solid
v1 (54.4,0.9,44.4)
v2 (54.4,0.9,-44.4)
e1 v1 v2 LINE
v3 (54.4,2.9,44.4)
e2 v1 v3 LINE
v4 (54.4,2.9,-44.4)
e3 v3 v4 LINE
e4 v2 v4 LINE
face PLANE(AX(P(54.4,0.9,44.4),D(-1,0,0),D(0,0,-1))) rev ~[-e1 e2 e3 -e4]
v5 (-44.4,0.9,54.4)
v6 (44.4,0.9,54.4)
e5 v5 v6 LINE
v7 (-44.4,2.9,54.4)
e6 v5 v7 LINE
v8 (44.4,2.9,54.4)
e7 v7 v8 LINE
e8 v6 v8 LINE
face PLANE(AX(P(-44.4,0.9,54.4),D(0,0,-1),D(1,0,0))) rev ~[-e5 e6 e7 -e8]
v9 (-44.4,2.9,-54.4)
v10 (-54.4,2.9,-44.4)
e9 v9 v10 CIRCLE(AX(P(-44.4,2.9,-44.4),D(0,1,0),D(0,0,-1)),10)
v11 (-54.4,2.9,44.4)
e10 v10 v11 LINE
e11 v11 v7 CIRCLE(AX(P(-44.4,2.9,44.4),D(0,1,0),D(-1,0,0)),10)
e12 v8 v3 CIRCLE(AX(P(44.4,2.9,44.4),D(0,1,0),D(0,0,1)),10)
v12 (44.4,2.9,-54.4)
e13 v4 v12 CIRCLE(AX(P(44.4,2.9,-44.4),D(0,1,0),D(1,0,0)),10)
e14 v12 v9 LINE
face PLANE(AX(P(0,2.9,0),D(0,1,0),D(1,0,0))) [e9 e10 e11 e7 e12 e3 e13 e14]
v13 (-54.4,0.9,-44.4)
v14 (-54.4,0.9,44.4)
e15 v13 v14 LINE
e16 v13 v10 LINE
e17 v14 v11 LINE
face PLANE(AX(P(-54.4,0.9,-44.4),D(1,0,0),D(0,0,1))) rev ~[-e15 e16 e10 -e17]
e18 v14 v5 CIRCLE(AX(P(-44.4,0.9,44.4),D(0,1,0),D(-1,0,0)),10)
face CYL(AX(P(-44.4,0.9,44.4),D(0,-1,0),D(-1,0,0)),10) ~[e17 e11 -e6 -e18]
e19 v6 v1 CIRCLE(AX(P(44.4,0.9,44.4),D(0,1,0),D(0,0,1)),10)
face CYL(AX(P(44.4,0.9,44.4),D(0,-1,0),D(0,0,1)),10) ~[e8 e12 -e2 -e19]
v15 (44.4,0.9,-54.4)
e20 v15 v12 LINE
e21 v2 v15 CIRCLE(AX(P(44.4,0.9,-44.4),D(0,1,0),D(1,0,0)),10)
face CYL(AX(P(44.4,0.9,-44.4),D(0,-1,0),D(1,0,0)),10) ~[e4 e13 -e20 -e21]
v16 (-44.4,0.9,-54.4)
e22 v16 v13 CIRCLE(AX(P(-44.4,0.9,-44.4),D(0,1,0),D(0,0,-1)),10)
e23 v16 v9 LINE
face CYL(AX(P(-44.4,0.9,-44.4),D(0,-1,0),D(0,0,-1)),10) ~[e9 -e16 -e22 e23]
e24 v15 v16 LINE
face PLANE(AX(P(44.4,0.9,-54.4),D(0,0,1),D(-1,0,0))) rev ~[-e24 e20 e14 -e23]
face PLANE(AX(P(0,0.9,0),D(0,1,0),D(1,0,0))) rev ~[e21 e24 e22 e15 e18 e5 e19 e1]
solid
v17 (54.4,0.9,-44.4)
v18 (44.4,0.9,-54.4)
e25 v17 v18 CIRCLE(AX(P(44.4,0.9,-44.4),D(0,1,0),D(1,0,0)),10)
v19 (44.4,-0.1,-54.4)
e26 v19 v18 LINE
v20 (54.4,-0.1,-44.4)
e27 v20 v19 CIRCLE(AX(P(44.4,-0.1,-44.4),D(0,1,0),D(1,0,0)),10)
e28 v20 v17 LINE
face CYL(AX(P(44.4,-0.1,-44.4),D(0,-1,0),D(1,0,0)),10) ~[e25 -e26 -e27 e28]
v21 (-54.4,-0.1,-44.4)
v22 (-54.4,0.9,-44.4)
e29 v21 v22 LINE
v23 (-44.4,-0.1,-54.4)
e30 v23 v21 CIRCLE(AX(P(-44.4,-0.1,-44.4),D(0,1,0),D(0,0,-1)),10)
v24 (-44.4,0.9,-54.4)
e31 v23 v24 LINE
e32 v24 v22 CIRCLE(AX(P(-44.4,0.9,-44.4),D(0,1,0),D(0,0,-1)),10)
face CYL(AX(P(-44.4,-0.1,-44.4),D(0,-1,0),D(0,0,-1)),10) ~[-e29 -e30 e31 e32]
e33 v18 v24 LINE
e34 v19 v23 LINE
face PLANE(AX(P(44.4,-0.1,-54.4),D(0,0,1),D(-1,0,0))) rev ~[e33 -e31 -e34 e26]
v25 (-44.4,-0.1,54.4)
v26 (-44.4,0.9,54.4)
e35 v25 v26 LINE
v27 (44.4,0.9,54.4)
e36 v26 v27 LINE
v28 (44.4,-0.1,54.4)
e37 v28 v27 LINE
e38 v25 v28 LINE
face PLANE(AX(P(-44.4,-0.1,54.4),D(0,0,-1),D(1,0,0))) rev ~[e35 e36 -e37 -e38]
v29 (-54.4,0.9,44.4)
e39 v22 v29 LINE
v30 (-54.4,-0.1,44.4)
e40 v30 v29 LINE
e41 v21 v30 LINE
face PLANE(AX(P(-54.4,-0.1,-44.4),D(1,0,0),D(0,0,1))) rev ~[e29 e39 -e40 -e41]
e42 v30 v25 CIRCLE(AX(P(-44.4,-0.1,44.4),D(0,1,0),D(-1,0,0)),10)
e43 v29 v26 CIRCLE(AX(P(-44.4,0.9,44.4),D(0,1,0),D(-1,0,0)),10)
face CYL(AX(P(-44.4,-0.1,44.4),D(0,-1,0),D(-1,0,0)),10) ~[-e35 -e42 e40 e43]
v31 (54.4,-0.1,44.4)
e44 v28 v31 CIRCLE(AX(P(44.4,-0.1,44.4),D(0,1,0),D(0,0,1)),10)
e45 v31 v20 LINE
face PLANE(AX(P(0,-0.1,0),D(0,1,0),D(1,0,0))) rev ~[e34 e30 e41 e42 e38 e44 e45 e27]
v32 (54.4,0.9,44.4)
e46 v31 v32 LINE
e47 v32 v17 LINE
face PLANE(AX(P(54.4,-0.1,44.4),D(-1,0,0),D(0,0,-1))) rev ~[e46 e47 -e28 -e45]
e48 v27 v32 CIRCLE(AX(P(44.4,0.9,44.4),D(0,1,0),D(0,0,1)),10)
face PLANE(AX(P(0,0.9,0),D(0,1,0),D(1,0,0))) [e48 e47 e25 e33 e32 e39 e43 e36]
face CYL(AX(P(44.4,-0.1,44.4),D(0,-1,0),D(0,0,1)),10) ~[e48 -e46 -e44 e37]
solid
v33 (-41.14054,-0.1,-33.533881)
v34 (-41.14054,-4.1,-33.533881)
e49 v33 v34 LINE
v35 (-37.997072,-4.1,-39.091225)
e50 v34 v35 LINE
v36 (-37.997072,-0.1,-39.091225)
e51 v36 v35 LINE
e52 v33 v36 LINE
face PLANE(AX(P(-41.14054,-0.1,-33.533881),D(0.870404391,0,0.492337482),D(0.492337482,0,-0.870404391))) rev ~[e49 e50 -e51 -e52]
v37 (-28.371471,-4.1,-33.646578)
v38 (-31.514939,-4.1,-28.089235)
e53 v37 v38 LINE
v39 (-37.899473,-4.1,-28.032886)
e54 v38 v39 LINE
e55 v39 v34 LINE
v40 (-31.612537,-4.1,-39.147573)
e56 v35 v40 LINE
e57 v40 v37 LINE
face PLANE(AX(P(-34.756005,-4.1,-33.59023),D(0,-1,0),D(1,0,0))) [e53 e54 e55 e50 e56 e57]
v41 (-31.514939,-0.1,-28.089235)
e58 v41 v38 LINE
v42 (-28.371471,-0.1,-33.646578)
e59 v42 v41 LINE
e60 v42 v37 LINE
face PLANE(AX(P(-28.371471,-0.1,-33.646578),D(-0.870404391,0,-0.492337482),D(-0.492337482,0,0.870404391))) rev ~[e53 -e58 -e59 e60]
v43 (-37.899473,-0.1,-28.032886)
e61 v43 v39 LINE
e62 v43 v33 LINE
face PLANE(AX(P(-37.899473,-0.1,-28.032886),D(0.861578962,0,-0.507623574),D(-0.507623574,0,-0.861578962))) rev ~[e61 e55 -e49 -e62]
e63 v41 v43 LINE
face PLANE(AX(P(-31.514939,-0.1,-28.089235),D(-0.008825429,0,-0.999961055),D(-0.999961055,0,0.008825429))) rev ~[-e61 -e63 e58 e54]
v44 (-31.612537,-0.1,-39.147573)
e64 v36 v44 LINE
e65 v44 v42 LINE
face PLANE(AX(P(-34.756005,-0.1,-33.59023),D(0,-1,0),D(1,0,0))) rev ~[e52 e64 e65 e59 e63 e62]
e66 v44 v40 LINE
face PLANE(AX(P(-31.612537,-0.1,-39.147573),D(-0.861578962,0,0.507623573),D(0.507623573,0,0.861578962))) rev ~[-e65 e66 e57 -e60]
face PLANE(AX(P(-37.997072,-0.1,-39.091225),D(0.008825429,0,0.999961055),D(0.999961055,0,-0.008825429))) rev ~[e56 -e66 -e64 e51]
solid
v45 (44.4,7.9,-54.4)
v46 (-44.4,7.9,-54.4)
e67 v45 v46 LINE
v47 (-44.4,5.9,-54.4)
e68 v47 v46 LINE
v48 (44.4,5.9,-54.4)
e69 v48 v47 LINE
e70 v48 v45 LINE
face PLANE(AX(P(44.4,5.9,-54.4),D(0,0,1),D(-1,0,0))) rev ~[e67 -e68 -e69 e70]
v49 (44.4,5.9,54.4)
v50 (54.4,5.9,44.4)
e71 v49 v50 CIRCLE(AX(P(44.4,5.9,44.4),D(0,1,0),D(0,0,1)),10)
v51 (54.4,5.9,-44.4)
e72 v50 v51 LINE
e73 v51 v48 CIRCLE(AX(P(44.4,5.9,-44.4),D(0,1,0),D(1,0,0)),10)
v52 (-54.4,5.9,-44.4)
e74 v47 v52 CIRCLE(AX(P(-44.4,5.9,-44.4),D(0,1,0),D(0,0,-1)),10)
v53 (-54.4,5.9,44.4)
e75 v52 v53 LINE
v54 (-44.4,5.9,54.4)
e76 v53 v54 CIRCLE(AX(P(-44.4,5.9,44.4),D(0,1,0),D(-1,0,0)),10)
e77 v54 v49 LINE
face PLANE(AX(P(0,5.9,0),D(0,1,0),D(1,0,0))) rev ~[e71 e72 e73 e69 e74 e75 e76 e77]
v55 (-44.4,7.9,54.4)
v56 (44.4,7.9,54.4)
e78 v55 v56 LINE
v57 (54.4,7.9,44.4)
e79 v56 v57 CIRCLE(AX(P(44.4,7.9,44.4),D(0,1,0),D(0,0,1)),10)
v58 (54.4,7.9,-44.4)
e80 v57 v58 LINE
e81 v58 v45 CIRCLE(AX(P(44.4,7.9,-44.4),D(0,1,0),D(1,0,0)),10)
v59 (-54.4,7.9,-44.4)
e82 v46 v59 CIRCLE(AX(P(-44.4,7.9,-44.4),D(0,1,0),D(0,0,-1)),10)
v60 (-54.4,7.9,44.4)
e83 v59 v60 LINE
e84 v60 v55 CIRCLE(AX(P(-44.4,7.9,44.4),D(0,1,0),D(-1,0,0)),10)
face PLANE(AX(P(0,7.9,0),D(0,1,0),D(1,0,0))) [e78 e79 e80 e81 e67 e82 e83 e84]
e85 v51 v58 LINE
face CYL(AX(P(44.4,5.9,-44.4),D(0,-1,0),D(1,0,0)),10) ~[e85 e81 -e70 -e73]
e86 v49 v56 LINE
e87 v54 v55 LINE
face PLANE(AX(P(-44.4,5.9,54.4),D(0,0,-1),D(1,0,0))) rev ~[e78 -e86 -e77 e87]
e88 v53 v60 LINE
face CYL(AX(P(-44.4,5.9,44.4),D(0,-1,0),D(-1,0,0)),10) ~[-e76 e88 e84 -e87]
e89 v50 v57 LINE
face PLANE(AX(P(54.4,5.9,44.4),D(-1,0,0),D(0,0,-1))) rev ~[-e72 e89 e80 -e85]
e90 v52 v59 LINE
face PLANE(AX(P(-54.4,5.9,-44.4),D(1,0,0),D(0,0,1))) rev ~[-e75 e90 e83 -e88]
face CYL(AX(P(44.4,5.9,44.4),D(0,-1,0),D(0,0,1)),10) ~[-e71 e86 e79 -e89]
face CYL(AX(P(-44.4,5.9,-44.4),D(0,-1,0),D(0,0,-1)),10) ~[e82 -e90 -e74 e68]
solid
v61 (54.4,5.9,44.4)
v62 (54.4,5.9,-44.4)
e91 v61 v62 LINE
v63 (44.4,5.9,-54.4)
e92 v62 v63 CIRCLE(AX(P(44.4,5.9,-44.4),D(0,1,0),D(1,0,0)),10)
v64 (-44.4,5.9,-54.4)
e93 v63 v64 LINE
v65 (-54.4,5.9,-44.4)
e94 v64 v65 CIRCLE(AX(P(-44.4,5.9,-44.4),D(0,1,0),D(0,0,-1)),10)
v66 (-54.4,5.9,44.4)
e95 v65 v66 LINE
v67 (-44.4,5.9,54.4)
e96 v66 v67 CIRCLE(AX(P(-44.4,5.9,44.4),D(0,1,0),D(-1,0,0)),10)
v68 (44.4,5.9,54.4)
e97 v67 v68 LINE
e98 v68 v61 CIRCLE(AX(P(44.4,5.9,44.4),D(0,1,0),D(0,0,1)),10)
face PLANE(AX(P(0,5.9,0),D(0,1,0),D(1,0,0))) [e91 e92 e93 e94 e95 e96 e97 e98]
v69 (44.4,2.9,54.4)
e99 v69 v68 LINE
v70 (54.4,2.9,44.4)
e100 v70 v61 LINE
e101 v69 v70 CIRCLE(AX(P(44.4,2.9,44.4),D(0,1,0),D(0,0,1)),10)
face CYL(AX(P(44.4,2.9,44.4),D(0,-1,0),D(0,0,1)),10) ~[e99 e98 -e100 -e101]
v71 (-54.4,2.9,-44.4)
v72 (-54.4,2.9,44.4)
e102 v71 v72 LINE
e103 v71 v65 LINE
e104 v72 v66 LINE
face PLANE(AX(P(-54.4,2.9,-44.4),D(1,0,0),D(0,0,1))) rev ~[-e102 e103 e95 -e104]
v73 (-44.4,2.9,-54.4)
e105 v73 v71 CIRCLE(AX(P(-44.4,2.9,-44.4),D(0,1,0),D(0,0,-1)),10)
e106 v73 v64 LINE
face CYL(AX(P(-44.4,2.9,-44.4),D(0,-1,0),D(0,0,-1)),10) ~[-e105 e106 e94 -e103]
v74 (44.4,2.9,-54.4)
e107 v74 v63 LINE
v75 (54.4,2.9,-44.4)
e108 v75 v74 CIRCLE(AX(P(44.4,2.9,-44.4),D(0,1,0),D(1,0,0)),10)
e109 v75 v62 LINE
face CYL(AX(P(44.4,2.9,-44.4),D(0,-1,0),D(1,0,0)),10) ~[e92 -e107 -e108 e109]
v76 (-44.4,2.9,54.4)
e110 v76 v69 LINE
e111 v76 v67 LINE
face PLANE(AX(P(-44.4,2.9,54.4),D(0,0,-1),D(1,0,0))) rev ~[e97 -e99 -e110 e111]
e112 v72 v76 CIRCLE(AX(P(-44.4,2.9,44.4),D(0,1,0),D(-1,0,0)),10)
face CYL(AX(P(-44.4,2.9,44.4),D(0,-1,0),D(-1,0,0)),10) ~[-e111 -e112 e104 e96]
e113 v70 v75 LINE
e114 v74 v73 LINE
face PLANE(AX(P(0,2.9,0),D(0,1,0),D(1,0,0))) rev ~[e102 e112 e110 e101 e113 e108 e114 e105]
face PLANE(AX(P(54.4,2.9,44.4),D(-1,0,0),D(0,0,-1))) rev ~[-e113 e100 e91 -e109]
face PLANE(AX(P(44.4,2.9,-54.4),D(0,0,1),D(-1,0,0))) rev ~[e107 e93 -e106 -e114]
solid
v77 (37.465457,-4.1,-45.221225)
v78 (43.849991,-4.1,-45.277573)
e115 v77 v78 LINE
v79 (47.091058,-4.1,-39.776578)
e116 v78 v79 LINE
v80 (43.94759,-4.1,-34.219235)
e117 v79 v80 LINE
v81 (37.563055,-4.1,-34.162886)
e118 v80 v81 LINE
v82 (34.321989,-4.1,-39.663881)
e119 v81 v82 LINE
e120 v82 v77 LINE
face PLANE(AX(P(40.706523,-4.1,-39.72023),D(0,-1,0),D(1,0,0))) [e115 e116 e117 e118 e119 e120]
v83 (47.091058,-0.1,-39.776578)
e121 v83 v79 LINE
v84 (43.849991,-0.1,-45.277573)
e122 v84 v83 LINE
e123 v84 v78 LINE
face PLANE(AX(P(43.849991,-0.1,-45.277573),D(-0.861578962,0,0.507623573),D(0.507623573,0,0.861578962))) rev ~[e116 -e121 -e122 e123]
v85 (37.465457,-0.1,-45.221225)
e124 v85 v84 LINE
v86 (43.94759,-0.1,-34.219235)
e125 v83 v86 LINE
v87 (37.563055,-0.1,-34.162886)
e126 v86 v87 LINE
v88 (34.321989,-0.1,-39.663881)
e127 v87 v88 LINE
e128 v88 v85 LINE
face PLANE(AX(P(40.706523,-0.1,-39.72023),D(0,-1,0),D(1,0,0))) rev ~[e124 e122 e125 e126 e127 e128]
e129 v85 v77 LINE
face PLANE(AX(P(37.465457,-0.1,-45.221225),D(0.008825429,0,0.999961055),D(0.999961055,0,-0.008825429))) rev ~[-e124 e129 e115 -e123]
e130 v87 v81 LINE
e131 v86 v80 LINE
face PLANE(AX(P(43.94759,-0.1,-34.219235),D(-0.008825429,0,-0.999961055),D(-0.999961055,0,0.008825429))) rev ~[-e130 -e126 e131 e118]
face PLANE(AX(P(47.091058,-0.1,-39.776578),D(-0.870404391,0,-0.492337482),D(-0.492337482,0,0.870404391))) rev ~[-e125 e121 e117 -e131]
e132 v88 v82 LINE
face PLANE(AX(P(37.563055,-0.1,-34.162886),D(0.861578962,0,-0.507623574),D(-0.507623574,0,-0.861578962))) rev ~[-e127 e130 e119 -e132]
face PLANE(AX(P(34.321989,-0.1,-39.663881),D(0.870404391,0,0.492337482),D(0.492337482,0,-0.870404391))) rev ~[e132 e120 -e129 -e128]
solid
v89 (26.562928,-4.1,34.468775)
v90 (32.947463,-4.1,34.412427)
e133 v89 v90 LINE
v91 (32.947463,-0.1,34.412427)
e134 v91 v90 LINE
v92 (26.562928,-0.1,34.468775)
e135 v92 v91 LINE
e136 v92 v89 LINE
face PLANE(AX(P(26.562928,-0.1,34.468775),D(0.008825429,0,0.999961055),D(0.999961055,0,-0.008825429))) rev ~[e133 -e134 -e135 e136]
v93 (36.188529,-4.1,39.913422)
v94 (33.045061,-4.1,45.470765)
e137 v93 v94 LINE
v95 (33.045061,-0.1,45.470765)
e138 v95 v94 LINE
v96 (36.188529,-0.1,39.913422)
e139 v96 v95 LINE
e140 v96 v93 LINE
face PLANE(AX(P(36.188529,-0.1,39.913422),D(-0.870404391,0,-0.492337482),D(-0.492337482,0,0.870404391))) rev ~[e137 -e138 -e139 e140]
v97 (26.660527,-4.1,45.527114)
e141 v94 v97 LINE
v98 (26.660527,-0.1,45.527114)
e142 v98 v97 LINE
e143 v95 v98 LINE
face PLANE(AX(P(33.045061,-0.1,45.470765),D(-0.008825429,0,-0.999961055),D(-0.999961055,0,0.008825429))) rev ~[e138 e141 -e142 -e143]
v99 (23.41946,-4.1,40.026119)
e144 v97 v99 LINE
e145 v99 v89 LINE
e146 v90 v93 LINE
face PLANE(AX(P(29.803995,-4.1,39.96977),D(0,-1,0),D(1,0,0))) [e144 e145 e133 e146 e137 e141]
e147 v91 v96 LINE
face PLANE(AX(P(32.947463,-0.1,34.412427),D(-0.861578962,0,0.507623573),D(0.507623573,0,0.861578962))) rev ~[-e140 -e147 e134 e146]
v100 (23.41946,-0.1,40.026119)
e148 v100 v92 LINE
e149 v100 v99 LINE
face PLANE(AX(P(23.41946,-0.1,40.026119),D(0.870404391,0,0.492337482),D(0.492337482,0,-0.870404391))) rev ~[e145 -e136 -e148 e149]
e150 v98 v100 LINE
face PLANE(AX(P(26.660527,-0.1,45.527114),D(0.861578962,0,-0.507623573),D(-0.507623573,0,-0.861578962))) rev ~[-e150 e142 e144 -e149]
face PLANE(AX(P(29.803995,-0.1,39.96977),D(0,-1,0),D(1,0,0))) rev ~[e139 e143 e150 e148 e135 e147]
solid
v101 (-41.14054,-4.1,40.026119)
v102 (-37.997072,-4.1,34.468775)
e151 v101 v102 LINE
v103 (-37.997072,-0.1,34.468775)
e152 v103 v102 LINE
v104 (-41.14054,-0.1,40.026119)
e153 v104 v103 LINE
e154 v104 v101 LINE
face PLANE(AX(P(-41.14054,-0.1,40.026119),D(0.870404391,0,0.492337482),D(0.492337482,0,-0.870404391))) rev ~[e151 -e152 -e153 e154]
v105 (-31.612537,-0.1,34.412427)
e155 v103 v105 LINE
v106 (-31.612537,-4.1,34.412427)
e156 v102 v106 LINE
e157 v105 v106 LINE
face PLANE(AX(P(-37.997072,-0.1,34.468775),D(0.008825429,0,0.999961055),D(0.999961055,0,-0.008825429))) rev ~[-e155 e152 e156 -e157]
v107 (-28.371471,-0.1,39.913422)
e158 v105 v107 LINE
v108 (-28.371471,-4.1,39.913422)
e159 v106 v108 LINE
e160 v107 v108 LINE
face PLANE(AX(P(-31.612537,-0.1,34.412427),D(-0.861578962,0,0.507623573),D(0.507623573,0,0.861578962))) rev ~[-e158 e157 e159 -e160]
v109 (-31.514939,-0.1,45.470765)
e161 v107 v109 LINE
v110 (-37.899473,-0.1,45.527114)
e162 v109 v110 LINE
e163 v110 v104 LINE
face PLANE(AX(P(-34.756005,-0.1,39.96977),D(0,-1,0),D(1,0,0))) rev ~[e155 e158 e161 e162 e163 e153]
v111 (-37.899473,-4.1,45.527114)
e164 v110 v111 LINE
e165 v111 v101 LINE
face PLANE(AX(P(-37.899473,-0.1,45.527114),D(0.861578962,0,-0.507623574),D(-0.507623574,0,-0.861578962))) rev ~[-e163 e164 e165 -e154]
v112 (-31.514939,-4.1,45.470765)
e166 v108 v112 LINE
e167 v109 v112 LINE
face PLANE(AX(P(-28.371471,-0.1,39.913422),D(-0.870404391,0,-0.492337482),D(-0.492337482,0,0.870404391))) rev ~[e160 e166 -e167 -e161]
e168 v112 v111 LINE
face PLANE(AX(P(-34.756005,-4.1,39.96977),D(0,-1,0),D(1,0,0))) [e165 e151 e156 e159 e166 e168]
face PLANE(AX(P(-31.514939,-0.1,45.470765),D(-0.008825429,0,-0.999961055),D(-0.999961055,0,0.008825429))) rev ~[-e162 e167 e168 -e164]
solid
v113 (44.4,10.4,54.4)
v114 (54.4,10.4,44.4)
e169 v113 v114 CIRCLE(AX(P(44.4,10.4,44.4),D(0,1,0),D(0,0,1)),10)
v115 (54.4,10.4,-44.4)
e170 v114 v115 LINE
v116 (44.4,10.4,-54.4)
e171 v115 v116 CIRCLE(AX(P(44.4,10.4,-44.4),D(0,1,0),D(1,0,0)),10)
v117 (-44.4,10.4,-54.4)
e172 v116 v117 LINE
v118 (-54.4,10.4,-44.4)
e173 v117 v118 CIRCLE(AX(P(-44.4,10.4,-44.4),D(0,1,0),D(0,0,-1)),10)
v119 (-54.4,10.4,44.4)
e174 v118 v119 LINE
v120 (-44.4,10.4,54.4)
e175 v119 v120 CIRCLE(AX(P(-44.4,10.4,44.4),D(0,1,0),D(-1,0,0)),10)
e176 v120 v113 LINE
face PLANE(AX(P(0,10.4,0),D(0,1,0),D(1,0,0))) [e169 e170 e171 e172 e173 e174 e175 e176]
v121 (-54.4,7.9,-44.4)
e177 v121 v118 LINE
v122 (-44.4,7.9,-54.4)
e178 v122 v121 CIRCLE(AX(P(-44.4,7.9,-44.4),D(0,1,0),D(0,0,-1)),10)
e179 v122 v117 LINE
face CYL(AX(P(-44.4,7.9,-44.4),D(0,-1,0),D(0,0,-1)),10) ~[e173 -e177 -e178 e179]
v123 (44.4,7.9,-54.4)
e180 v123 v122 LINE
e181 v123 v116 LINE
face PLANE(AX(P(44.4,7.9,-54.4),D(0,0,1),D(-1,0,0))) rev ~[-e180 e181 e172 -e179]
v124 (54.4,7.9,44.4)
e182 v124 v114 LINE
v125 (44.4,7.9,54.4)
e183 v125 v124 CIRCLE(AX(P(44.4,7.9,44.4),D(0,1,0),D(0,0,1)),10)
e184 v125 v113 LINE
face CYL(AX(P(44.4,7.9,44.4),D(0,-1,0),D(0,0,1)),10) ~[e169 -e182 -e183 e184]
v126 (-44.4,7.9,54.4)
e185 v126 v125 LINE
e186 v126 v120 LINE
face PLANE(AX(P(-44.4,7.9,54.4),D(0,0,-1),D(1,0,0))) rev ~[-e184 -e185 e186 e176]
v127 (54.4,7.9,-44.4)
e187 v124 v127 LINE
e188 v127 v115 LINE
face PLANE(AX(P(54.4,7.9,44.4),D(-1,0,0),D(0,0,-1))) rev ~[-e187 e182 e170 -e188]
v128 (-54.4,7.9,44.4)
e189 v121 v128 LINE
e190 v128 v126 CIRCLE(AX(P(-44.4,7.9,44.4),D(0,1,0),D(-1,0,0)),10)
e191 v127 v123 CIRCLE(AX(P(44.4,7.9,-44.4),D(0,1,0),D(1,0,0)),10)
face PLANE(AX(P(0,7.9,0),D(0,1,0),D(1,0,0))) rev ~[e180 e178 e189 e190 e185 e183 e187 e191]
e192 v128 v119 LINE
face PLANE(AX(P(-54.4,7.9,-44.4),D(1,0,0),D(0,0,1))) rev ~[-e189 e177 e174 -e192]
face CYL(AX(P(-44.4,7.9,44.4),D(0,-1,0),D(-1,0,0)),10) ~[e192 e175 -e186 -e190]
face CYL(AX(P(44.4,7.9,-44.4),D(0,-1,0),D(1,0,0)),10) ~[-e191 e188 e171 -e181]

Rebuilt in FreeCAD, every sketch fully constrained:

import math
import FreeCAD as App
import Part
import Sketcher

V = App.Vector

doc = App.newDocument("Part")
body = doc.addObject("PartDesign::Body", "Body")

# Sketch on XZ plane
sketch1 = doc.addObject("Sketcher::SketchObject", "Sketch")
body.addObject(sketch1)
sketch1.AttachmentSupport = (doc.XZ_Plane, [""])
sketch1.MapMode = "FlatFace"
sketch1.addGeometry(Part.LineSegment(V(44, -53, 0), V(-44, -53, 0)), False)
sketch1.addGeometry(Part.ArcOfCircle(Part.Circle(V(-44, -44, 0), V(0, 0, 1), 8), math.radians(180), math.radians(270)), False)
sketch1.addGeometry(Part.LineSegment(V(-53, -44, 0), V(-53, 44, 0)), False)
sketch1.addGeometry(Part.ArcOfCircle(Part.Circle(V(-44, 44, 0), V(0, 0, 1), 8), math.radians(90), math.radians(180)), False)
sketch1.addGeometry(Part.LineSegment(V(-44, 53, 0), V(44, 53, 0)), False)
sketch1.addGeometry(Part.ArcOfCircle(Part.Circle(V(44, 44, 0), V(0, 0, 1), 8), math.radians(0), math.radians(90)), False)
sketch1.addGeometry(Part.LineSegment(V(53, 44, 0), V(53, -44, 0)), False)
sketch1.addGeometry(Part.ArcOfCircle(Part.Circle(V(44, -44, 0), V(0, 0, 1), 8), math.radians(-90), math.radians(0)), False)
sketch1.addGeometry(Part.LineSegment(V(-44, -52, 0), V(44, -52, 0)), False)
sketch1.addGeometry(Part.ArcOfCircle(Part.Circle(V(44, -44, 0), V(0, 0, 1), 8), math.radians(-90), math.radians(0)), False)
sketch1.addGeometry(Part.LineSegment(V(52, -44, 0), V(52, 44, 0)), False)
sketch1.addGeometry(Part.ArcOfCircle(Part.Circle(V(44, 44, 0), V(0, 0, 1), 8), math.radians(0), math.radians(90)), False)
sketch1.addGeometry(Part.LineSegment(V(44, 52, 0), V(-44, 52, 0)), False)
sketch1.addGeometry(Part.ArcOfCircle(Part.Circle(V(-44, 44, 0), V(0, 0, 1), 8), math.radians(90), math.radians(180)), False)
sketch1.addGeometry(Part.LineSegment(V(-52, 44, 0), V(-52, -44, 0)), False)
sketch1.addGeometry(Part.ArcOfCircle(Part.Circle(V(-44, -44, 0), V(0, 0, 1), 8), math.radians(180), math.radians(270)), False)
sketch1.addConstraint(Sketcher.Constraint("Tangent", 0, 2, 1, 2))
sketch1.addConstraint(Sketcher.Constraint("Tangent", 1, 1, 2, 1))
sketch1.addConstraint(Sketcher.Constraint("Tangent", 2, 2, 3, 2))
sketch1.addConstraint(Sketcher.Constraint("Tangent", 3, 1, 4, 1))
sketch1.addConstraint(Sketcher.Constraint("Tangent", 4, 2, 5, 2))
sketch1.addConstraint(Sketcher.Constraint("Tangent", 5, 1, 6, 1))
sketch1.addConstraint(Sketcher.Constraint("Tangent", 6, 2, 7, 2))
sketch1.addConstraint(Sketcher.Constraint("Tangent", 7, 1, 0, 1))
sketch1.addConstraint(Sketcher.Constraint("Tangent", 8, 2, 9, 1))
sketch1.addConstraint(Sketcher.Constraint("Tangent", 9, 2, 10, 1))
sketch1.addConstraint(Sketcher.Constraint("Tangent", 10, 2, 11, 1))
sketch1.addConstraint(Sketcher.Constraint("Tangent", 11, 2, 12, 1))
sketch1.addConstraint(Sketcher.Constraint("Tangent", 12, 2, 13, 1))
sketch1.addConstraint(Sketcher.Constraint("Tangent", 13, 2, 14, 1))
sketch1.addConstraint(Sketcher.Constraint("Tangent", 14, 2, 15, 1))
sketch1.addConstraint(Sketcher.Constraint("Tangent", 15, 2, 8, 1))
sketch1.addConstraint(Sketcher.Constraint("Horizontal", 0))
sketch1.addConstraint(Sketcher.Constraint("Vertical", 2))
sketch1.addConstraint(Sketcher.Constraint("Horizontal", 4))
sketch1.addConstraint(Sketcher.Constraint("Vertical", 6))
sketch1.addConstraint(Sketcher.Constraint("Horizontal", 8))
sketch1.addConstraint(Sketcher.Constraint("Vertical", 10))
sketch1.addConstraint(Sketcher.Constraint("Horizontal", 12))
sketch1.addConstraint(Sketcher.Constraint("Vertical", 14))
sketch1.addConstraint(Sketcher.Constraint("Coincident", 9, 3, 7, 3))
sketch1.addConstraint(Sketcher.Constraint("Coincident", 11, 3, 5, 3))
sketch1.addConstraint(Sketcher.Constraint("Coincident", 13, 3, 3, 3))
sketch1.addConstraint(Sketcher.Constraint("Equal", 1, 3))
sketch1.addConstraint(Sketcher.Constraint("Equal", 3, 5))
sketch1.addConstraint(Sketcher.Constraint("Equal", 5, 7))
sketch1.addConstraint(Sketcher.Constraint("Equal", 13, 15))
sketch1.addConstraint(Sketcher.Constraint("Symmetric", 1, 3, 5, 3, -1, 1))
sketch1.addConstraint(Sketcher.Constraint("Equal", 12, 2))
sketch1.addConstraint(Sketcher.Constraint("Radius", 1, 8.5))
sketch1.addConstraint(Sketcher.Constraint("Radius", 9, 7.5))
sketch1.addConstraint(Sketcher.Constraint("DistanceX", 0, 2, 0, 1, 88.8))
pad1 = doc.addObject("PartDesign::Pad", "Pad")
body.addObject(pad1)
pad1.Profile = sketch1
pad1.Length = 0.1

# Sketch on XZ plane
sketch2 = doc.addObject("Sketcher::SketchObject", "Sketch001")
body.addObject(sketch2)
sketch2.AttachmentSupport = (doc.XZ_Plane, [""])
sketch2.MapMode = "FlatFace"
sketch2.AttachmentOffset = App.Placement(V(0, 0, 0.1), App.Rotation())
sketch2.addGeometry(Part.LineSegment(V(54, 44, 0), V(54, -44, 0)), False)
sketch2.addGeometry(Part.ArcOfCircle(Part.Circle(V(44, -44, 0), V(0, 0, 1), 10), math.radians(-90), math.radians(0)), False)
sketch2.addGeometry(Part.LineSegment(V(44, -54, 0), V(-44, -54, 0)), False)
sketch2.addGeometry(Part.ArcOfCircle(Part.Circle(V(-44, -44, 0), V(0, 0, 1), 10), math.radians(180), math.radians(270)), False)
sketch2.addGeometry(Part.LineSegment(V(-54, -44, 0), V(-54, 44, 0)), False)
sketch2.addGeometry(Part.ArcOfCircle(Part.Circle(V(-44, 44, 0), V(0, 0, 1), 10), math.radians(90), math.radians(180)), False)
sketch2.addGeometry(Part.LineSegment(V(-44, 54, 0), V(44, 54, 0)), False)
sketch2.addGeometry(Part.ArcOfCircle(Part.Circle(V(44, 44, 0), V(0, 0, 1), 10), math.radians(0), math.radians(90)), False)
sketch2.addConstraint(Sketcher.Constraint("Tangent", 0, 2, 1, 2))
sketch2.addConstraint(Sketcher.Constraint("Tangent", 1, 1, 2, 1))
sketch2.addConstraint(Sketcher.Constraint("Tangent", 2, 2, 3, 2))
sketch2.addConstraint(Sketcher.Constraint("Tangent", 3, 1, 4, 1))
sketch2.addConstraint(Sketcher.Constraint("Tangent", 4, 2, 5, 2))
sketch2.addConstraint(Sketcher.Constraint("Tangent", 5, 1, 6, 1))
sketch2.addConstraint(Sketcher.Constraint("Tangent", 6, 2, 7, 2))
sketch2.addConstraint(Sketcher.Constraint("Tangent", 7, 1, 0, 1))
sketch2.addConstraint(Sketcher.Constraint("Vertical", 0))
sketch2.addConstraint(Sketcher.Constraint("Horizontal", 2))
sketch2.addConstraint(Sketcher.Constraint("Vertical", 4))
sketch2.addConstraint(Sketcher.Constraint("Horizontal", 6))
sketch2.addConstraint(Sketcher.Constraint("Equal", 1, 3))
sketch2.addConstraint(Sketcher.Constraint("Equal", 3, 5))
sketch2.addConstraint(Sketcher.Constraint("Equal", 5, 7))
sketch2.addConstraint(Sketcher.Constraint("Symmetric", 1, 3, 5, 3, -1, 1))
sketch2.addConstraint(Sketcher.Constraint("Equal", 6, 0))
sketch2.addConstraint(Sketcher.Constraint("Radius", 1, 10.0))
sketch2.addConstraint(Sketcher.Constraint("DistanceX", 2, 2, 2, 1, 88.8))
pad2 = doc.addObject("PartDesign::Pad", "Pad001")
body.addObject(pad2)
pad2.Profile = sketch2
pad2.Length = 1
pad2.Reversed = True
body2 = doc.addObject("PartDesign::Body", "Body001")

# Sketch on XZ plane
sketch3 = doc.addObject("Sketcher::SketchObject", "Sketch002")
body2.addObject(sketch3)
sketch3.AttachmentSupport = (doc.getObject("XZ_Plane001"), [""])
sketch3.MapMode = "FlatFace"
sketch3.AttachmentOffset = App.Placement(V(0, 0, 0.1), App.Rotation())
sketch3.addGeometry(Part.LineSegment(V(-41, 40, 0), V(-38, 34, 0)), False)
sketch3.addGeometry(Part.LineSegment(V(-38, 34, 0), V(-32, 34, 0)), False)
sketch3.addGeometry(Part.LineSegment(V(-32, 34, 0), V(-28, 40, 0)), False)
sketch3.addGeometry(Part.LineSegment(V(-28, 40, 0), V(-32, 45, 0)), False)
sketch3.addGeometry(Part.LineSegment(V(-32, 45, 0), V(-38, 46, 0)), False)
sketch3.addGeometry(Part.LineSegment(V(-38, 46, 0), V(-41, 40, 0)), False)
sketch3.addConstraint(Sketcher.Constraint("Coincident", 0, 2, 1, 1))
sketch3.addConstraint(Sketcher.Constraint("Coincident", 1, 2, 2, 1))
sketch3.addConstraint(Sketcher.Constraint("Coincident", 2, 2, 3, 1))
sketch3.addConstraint(Sketcher.Constraint("Coincident", 3, 2, 4, 1))
sketch3.addConstraint(Sketcher.Constraint("Coincident", 4, 2, 5, 1))
sketch3.addConstraint(Sketcher.Constraint("Coincident", 5, 2, 0, 1))
sketch3.addConstraint(Sketcher.Constraint("Parallel", 0, 3))
sketch3.addConstraint(Sketcher.Constraint("Parallel", 1, 4))
sketch3.addConstraint(Sketcher.Constraint("Parallel", 2, 5))
sketch3.addConstraint(Sketcher.Constraint("Equal", 0, 1))
sketch3.addConstraint(Sketcher.Constraint("Equal", 1, 2))
sketch3.addConstraint(Sketcher.Constraint("Equal", 2, 3))
sketch3.addConstraint(Sketcher.Constraint("DistanceX", 0, 2, 2, 2, 9.625601))
sketch3.addConstraint(Sketcher.Constraint("DistanceX", 1, 2, 3, 2, 0.097598))
sketch3.addConstraint(Sketcher.Constraint("DistanceX", 0, 2, -1, 1, 37.997072))
sketch3.addConstraint(Sketcher.Constraint("DistanceY", -1, 1, 2, 2, 39.913422))
sketch3.addConstraint(Sketcher.Constraint("DistanceX", 3, 2, -1, 1, 31.514939))
sketch3.addConstraint(Sketcher.Constraint("DistanceY", -1, 1, 5, 2, 40.026119))
pad3 = doc.addObject("PartDesign::Pad", "Pad002")
body2.addObject(pad3)
pad3.Profile = sketch3
pad3.Length = 4
body3 = doc.addObject("PartDesign::Body", "Body002")

# Sketch on XZ plane
sketch4 = doc.addObject("Sketcher::SketchObject", "Sketch003")
body3.addObject(sketch4)
sketch4.AttachmentSupport = (doc.getObject("XZ_Plane002"), [""])
sketch4.MapMode = "FlatFace"
sketch4.AttachmentOffset = App.Placement(V(0, 0, 0.1), App.Rotation())
sketch4.addGeometry(Part.LineSegment(V(23, 40, 0), V(27, 34, 0)), False)
sketch4.addGeometry(Part.LineSegment(V(27, 34, 0), V(33, 34, 0)), False)
sketch4.addGeometry(Part.LineSegment(V(33, 34, 0), V(36, 40, 0)), False)
sketch4.addGeometry(Part.LineSegment(V(36, 40, 0), V(33, 45, 0)), False)
sketch4.addGeometry(Part.LineSegment(V(33, 45, 0), V(27, 46, 0)), False)
sketch4.addGeometry(Part.LineSegment(V(27, 46, 0), V(23, 40, 0)), False)
sketch4.addConstraint(Sketcher.Constraint("Coincident", 0, 2, 1, 1))
sketch4.addConstraint(Sketcher.Constraint("Coincident", 1, 2, 2, 1))
sketch4.addConstraint(Sketcher.Constraint("Coincident", 2, 2, 3, 1))
sketch4.addConstraint(Sketcher.Constraint("Coincident", 3, 2, 4, 1))
sketch4.addConstraint(Sketcher.Constraint("Coincident", 4, 2, 5, 1))
sketch4.addConstraint(Sketcher.Constraint("Coincident", 5, 2, 0, 1))
sketch4.addConstraint(Sketcher.Constraint("Parallel", 0, 3))
sketch4.addConstraint(Sketcher.Constraint("Parallel", 1, 4))
sketch4.addConstraint(Sketcher.Constraint("Parallel", 2, 5))
sketch4.addConstraint(Sketcher.Constraint("Equal", 0, 1))
sketch4.addConstraint(Sketcher.Constraint("Equal", 1, 2))
sketch4.addConstraint(Sketcher.Constraint("Equal", 2, 3))
sketch4.addConstraint(Sketcher.Constraint("DistanceX", 0, 2, 2, 2, 9.625601))
sketch4.addConstraint(Sketcher.Constraint("DistanceX", 1, 2, 3, 2, 0.097598))
sketch4.addConstraint(Sketcher.Constraint("DistanceX", -1, 1, 0, 2, 26.562928))
sketch4.addConstraint(Sketcher.Constraint("DistanceY", -1, 1, 2, 2, 39.913422))
sketch4.addConstraint(Sketcher.Constraint("DistanceX", -1, 1, 3, 2, 33.045061))
sketch4.addConstraint(Sketcher.Constraint("DistanceY", -1, 1, 5, 2, 40.026119))
pad4 = doc.addObject("PartDesign::Pad", "Pad003")
body3.addObject(pad4)
pad4.Profile = sketch4
pad4.Length = 4
body4 = doc.addObject("PartDesign::Body", "Body003")

# Sketch on XZ plane
sketch5 = doc.addObject("Sketcher::SketchObject", "Sketch004")
body4.addObject(sketch5)
sketch5.AttachmentSupport = (doc.getObject("XZ_Plane003"), [""])
sketch5.MapMode = "FlatFace"
sketch5.AttachmentOffset = App.Placement(V(0, 0, 0.1), App.Rotation())
sketch5.addGeometry(Part.LineSegment(V(34.321989, -39.663881, 0), V(37.465457, -45.221225, 0)), False)
sketch5.addGeometry(Part.LineSegment(V(37.465457, -45.221225, 0), V(43.849991, -45.277573, 0)), False)
sketch5.addGeometry(Part.LineSegment(V(43.849991, -45.277573, 0), V(47.091058, -39.776578, 0)), False)
sketch5.addGeometry(Part.LineSegment(V(47.091058, -39.776578, 0), V(43.94759, -34.219235, 0)), False)
sketch5.addGeometry(Part.LineSegment(V(43.94759, -34.219235, 0), V(37.563055, -34.162886, 0)), False)
sketch5.addGeometry(Part.LineSegment(V(37.563055, -34.162886, 0), V(34.321989, -39.663881, 0)), False)
sketch5.addConstraint(Sketcher.Constraint("Coincident", 0, 2, 1, 1))
sketch5.addConstraint(Sketcher.Constraint("Coincident", 1, 2, 2, 1))
sketch5.addConstraint(Sketcher.Constraint("Coincident", 2, 2, 3, 1))
sketch5.addConstraint(Sketcher.Constraint("Coincident", 3, 2, 4, 1))
sketch5.addConstraint(Sketcher.Constraint("Coincident", 4, 2, 5, 1))
sketch5.addConstraint(Sketcher.Constraint("Coincident", 5, 2, 0, 1))
sketch5.addConstraint(Sketcher.Constraint("DistanceX", 0, 2, 2, 2, 9.625601))
sketch5.addConstraint(Sketcher.Constraint("DistanceX", 1, 2, 3, 2, 0.097598))
sketch5.addConstraint(Sketcher.Constraint("DistanceX", 0, 2, 4, 2, 0.097598))
sketch5.addConstraint(Sketcher.Constraint("DistanceX", 5, 2, 3, 2, 9.625601))
sketch5.addConstraint(Sketcher.Constraint("DistanceX", -1, 1, 1, 2, 43.849991))
sketch5.addConstraint(Sketcher.Constraint("DistanceY", 2, 2, -1, 1, 39.776578))
sketch5.addConstraint(Sketcher.Constraint("DistanceY", 5, 2, -1, 1, 39.663881))
sketch5.addConstraint(Sketcher.Constraint("DistanceY", 1, 2, 0, 2, 0.056348))
sketch5.addConstraint(Sketcher.Constraint("DistanceX", 3, 2, 2, 2, 3.143468))
sketch5.addConstraint(Sketcher.Constraint("DistanceY", 1, 2, 3, 2, 11.058338))
sketch5.addConstraint(Sketcher.Constraint("DistanceY", 3, 2, 4, 2, 0.056348))
sketch5.addConstraint(Sketcher.Constraint("DistanceY", 2, 2, 4, 2, 5.613692))
pad5 = doc.addObject("PartDesign::Pad", "Pad004")
body4.addObject(pad5)
pad5.Profile = sketch5
pad5.Length = 4
body5 = doc.addObject("PartDesign::Body", "Body004")

# Sketch on XZ plane
sketch6 = doc.addObject("Sketcher::SketchObject", "Sketch005")
body5.addObject(sketch6)
sketch6.AttachmentSupport = (doc.getObject("XZ_Plane004"), [""])
sketch6.MapMode = "FlatFace"
sketch6.AttachmentOffset = App.Placement(V(0, 0, 0.1), App.Rotation())
sketch6.addGeometry(Part.LineSegment(V(-41, -34, 0), V(-38, -39, 0)), False)
sketch6.addGeometry(Part.LineSegment(V(-38, -39, 0), V(-32, -39, 0)), False)
sketch6.addGeometry(Part.LineSegment(V(-32, -39, 0), V(-28, -34, 0)), False)
sketch6.addGeometry(Part.LineSegment(V(-28, -34, 0), V(-32, -28, 0)), False)
sketch6.addGeometry(Part.LineSegment(V(-32, -28, 0), V(-38, -28, 0)), False)
sketch6.addGeometry(Part.LineSegment(V(-38, -28, 0), V(-41, -34, 0)), False)
sketch6.addConstraint(Sketcher.Constraint("Coincident", 0, 2, 1, 1))
sketch6.addConstraint(Sketcher.Constraint("Coincident", 1, 2, 2, 1))
sketch6.addConstraint(Sketcher.Constraint("Coincident", 2, 2, 3, 1))
sketch6.addConstraint(Sketcher.Constraint("Coincident", 3, 2, 4, 1))
sketch6.addConstraint(Sketcher.Constraint("Coincident", 4, 2, 5, 1))
sketch6.addConstraint(Sketcher.Constraint("Coincident", 5, 2, 0, 1))
sketch6.addConstraint(Sketcher.Constraint("Parallel", 0, 3))
sketch6.addConstraint(Sketcher.Constraint("Parallel", 1, 4))
sketch6.addConstraint(Sketcher.Constraint("Parallel", 2, 5))
sketch6.addConstraint(Sketcher.Constraint("Equal", 0, 1))
sketch6.addConstraint(Sketcher.Constraint("Equal", 1, 2))
sketch6.addConstraint(Sketcher.Constraint("Equal", 2, 3))
sketch6.addConstraint(Sketcher.Constraint("DistanceX", 0, 2, 2, 2, 9.625601))
sketch6.addConstraint(Sketcher.Constraint("DistanceX", 1, 2, 3, 2, 0.097598))
sketch6.addConstraint(Sketcher.Constraint("DistanceX", 0, 2, -1, 1, 37.997072))
sketch6.addConstraint(Sketcher.Constraint("DistanceY", 2, 2, -1, 1, 33.646578))
sketch6.addConstraint(Sketcher.Constraint("DistanceX", 3, 2, -1, 1, 31.514939))
sketch6.addConstraint(Sketcher.Constraint("DistanceY", 5, 2, -1, 1, 33.533881))
pad6 = doc.addObject("PartDesign::Pad", "Pad005")
body5.addObject(pad6)
pad6.Profile = sketch6
pad6.Length = 4
body6 = doc.addObject("PartDesign::Body", "Body005")

# Sketch on XZ plane
sketch7 = doc.addObject("Sketcher::SketchObject", "Sketch006")
body6.addObject(sketch7)
sketch7.AttachmentSupport = (doc.getObject("XZ_Plane005"), [""])
sketch7.MapMode = "FlatFace"
sketch7.AttachmentOffset = App.Placement(V(0, 0, -0.9), App.Rotation())
sketch7.addGeometry(Part.LineSegment(V(54, 44, 0), V(54, -44, 0)), False)
sketch7.addGeometry(Part.ArcOfCircle(Part.Circle(V(44, -44, 0), V(0, 0, 1), 10), math.radians(-90), math.radians(0)), False)
sketch7.addGeometry(Part.LineSegment(V(44, -54, 0), V(-44, -54, 0)), False)
sketch7.addGeometry(Part.ArcOfCircle(Part.Circle(V(-44, -44, 0), V(0, 0, 1), 10), math.radians(180), math.radians(270)), False)
sketch7.addGeometry(Part.LineSegment(V(-54, -44, 0), V(-54, 44, 0)), False)
sketch7.addGeometry(Part.ArcOfCircle(Part.Circle(V(-44, 44, 0), V(0, 0, 1), 10), math.radians(90), math.radians(180)), False)
sketch7.addGeometry(Part.LineSegment(V(-44, 54, 0), V(44, 54, 0)), False)
sketch7.addGeometry(Part.ArcOfCircle(Part.Circle(V(44, 44, 0), V(0, 0, 1), 10), math.radians(0), math.radians(90)), False)
sketch7.addConstraint(Sketcher.Constraint("Tangent", 0, 2, 1, 2))
sketch7.addConstraint(Sketcher.Constraint("Tangent", 1, 1, 2, 1))
sketch7.addConstraint(Sketcher.Constraint("Tangent", 2, 2, 3, 2))
sketch7.addConstraint(Sketcher.Constraint("Tangent", 3, 1, 4, 1))
sketch7.addConstraint(Sketcher.Constraint("Tangent", 4, 2, 5, 2))
sketch7.addConstraint(Sketcher.Constraint("Tangent", 5, 1, 6, 1))
sketch7.addConstraint(Sketcher.Constraint("Tangent", 6, 2, 7, 2))
sketch7.addConstraint(Sketcher.Constraint("Tangent", 7, 1, 0, 1))
sketch7.addConstraint(Sketcher.Constraint("Vertical", 0))
sketch7.addConstraint(Sketcher.Constraint("Horizontal", 2))
sketch7.addConstraint(Sketcher.Constraint("Vertical", 4))
sketch7.addConstraint(Sketcher.Constraint("Horizontal", 6))
sketch7.addConstraint(Sketcher.Constraint("Equal", 1, 3))
sketch7.addConstraint(Sketcher.Constraint("Equal", 3, 5))
sketch7.addConstraint(Sketcher.Constraint("Equal", 5, 7))
sketch7.addConstraint(Sketcher.Constraint("Symmetric", 1, 3, 5, 3, -1, 1))
sketch7.addConstraint(Sketcher.Constraint("Equal", 6, 0))
sketch7.addConstraint(Sketcher.Constraint("Radius", 1, 10.0))
sketch7.addConstraint(Sketcher.Constraint("DistanceX", 2, 2, 2, 1, 88.8))
pad7 = doc.addObject("PartDesign::Pad", "Pad006")
body6.addObject(pad7)
pad7.Profile = sketch7
pad7.Length = 2
pad7.Reversed = True
body7 = doc.addObject("PartDesign::Body", "Body006")

# Sketch on XZ plane
sketch8 = doc.addObject("Sketcher::SketchObject", "Sketch007")
body7.addObject(sketch8)
sketch8.AttachmentSupport = (doc.getObject("XZ_Plane006"), [""])
sketch8.MapMode = "FlatFace"
sketch8.AttachmentOffset = App.Placement(V(0, 0, -2.9), App.Rotation())
sketch8.addGeometry(Part.LineSegment(V(54, 44, 0), V(54, -44, 0)), False)
sketch8.addGeometry(Part.ArcOfCircle(Part.Circle(V(44, -44, 0), V(0, 0, 1), 10), math.radians(-90), math.radians(0)), False)
sketch8.addGeometry(Part.LineSegment(V(44, -54, 0), V(-44, -54, 0)), False)
sketch8.addGeometry(Part.ArcOfCircle(Part.Circle(V(-44, -44, 0), V(0, 0, 1), 10), math.radians(180), math.radians(270)), False)
sketch8.addGeometry(Part.LineSegment(V(-54, -44, 0), V(-54, 44, 0)), False)
sketch8.addGeometry(Part.ArcOfCircle(Part.Circle(V(-44, 44, 0), V(0, 0, 1), 10), math.radians(90), math.radians(180)), False)
sketch8.addGeometry(Part.LineSegment(V(-44, 54, 0), V(44, 54, 0)), False)
sketch8.addGeometry(Part.ArcOfCircle(Part.Circle(V(44, 44, 0), V(0, 0, 1), 10), math.radians(0), math.radians(90)), False)
sketch8.addConstraint(Sketcher.Constraint("Tangent", 0, 2, 1, 2))
sketch8.addConstraint(Sketcher.Constraint("Tangent", 1, 1, 2, 1))
sketch8.addConstraint(Sketcher.Constraint("Tangent", 2, 2, 3, 2))
sketch8.addConstraint(Sketcher.Constraint("Tangent", 3, 1, 4, 1))
sketch8.addConstraint(Sketcher.Constraint("Tangent", 4, 2, 5, 2))
sketch8.addConstraint(Sketcher.Constraint("Tangent", 5, 1, 6, 1))
sketch8.addConstraint(Sketcher.Constraint("Tangent", 6, 2, 7, 2))
sketch8.addConstraint(Sketcher.Constraint("Tangent", 7, 1, 0, 1))
sketch8.addConstraint(Sketcher.Constraint("Vertical", 0))
sketch8.addConstraint(Sketcher.Constraint("Horizontal", 2))
sketch8.addConstraint(Sketcher.Constraint("Vertical", 4))
sketch8.addConstraint(Sketcher.Constraint("Horizontal", 6))
sketch8.addConstraint(Sketcher.Constraint("Equal", 1, 3))
sketch8.addConstraint(Sketcher.Constraint("Equal", 3, 5))
sketch8.addConstraint(Sketcher.Constraint("Equal", 5, 7))
sketch8.addConstraint(Sketcher.Constraint("Symmetric", 1, 3, 5, 3, -1, 1))
sketch8.addConstraint(Sketcher.Constraint("Equal", 6, 0))
sketch8.addConstraint(Sketcher.Constraint("Radius", 1, 10.0))
sketch8.addConstraint(Sketcher.Constraint("DistanceX", 2, 2, 2, 1, 88.8))
pad8 = doc.addObject("PartDesign::Pad", "Pad007")
body7.addObject(pad8)
pad8.Profile = sketch8
pad8.Length = 3
pad8.Reversed = True
body8 = doc.addObject("PartDesign::Body", "Body007")

# Sketch on XZ plane
sketch9 = doc.addObject("Sketcher::SketchObject", "Sketch008")
body8.addObject(sketch9)
sketch9.AttachmentSupport = (doc.getObject("XZ_Plane007"), [""])
sketch9.MapMode = "FlatFace"
sketch9.AttachmentOffset = App.Placement(V(0, 0, -5.9), App.Rotation())
sketch9.addGeometry(Part.LineSegment(V(54, 44, 0), V(54, -44, 0)), False)
sketch9.addGeometry(Part.ArcOfCircle(Part.Circle(V(44, -44, 0), V(0, 0, 1), 10), math.radians(-90), math.radians(0)), False)
sketch9.addGeometry(Part.LineSegment(V(44, -54, 0), V(-44, -54, 0)), False)
sketch9.addGeometry(Part.ArcOfCircle(Part.Circle(V(-44, -44, 0), V(0, 0, 1), 10), math.radians(180), math.radians(270)), False)
sketch9.addGeometry(Part.LineSegment(V(-54, -44, 0), V(-54, 44, 0)), False)
sketch9.addGeometry(Part.ArcOfCircle(Part.Circle(V(-44, 44, 0), V(0, 0, 1), 10), math.radians(90), math.radians(180)), False)
sketch9.addGeometry(Part.LineSegment(V(-44, 54, 0), V(44, 54, 0)), False)
sketch9.addGeometry(Part.ArcOfCircle(Part.Circle(V(44, 44, 0), V(0, 0, 1), 10), math.radians(0), math.radians(90)), False)
sketch9.addConstraint(Sketcher.Constraint("Tangent", 0, 2, 1, 2))
sketch9.addConstraint(Sketcher.Constraint("Tangent", 1, 1, 2, 1))
sketch9.addConstraint(Sketcher.Constraint("Tangent", 2, 2, 3, 2))
sketch9.addConstraint(Sketcher.Constraint("Tangent", 3, 1, 4, 1))
sketch9.addConstraint(Sketcher.Constraint("Tangent", 4, 2, 5, 2))
sketch9.addConstraint(Sketcher.Constraint("Tangent", 5, 1, 6, 1))
sketch9.addConstraint(Sketcher.Constraint("Tangent", 6, 2, 7, 2))
sketch9.addConstraint(Sketcher.Constraint("Tangent", 7, 1, 0, 1))
sketch9.addConstraint(Sketcher.Constraint("Vertical", 0))
sketch9.addConstraint(Sketcher.Constraint("Horizontal", 2))
sketch9.addConstraint(Sketcher.Constraint("Vertical", 4))
sketch9.addConstraint(Sketcher.Constraint("Horizontal", 6))
sketch9.addConstraint(Sketcher.Constraint("Equal", 1, 3))
sketch9.addConstraint(Sketcher.Constraint("Equal", 3, 5))
sketch9.addConstraint(Sketcher.Constraint("Equal", 5, 7))
sketch9.addConstraint(Sketcher.Constraint("Symmetric", 1, 3, 5, 3, -1, 1))
sketch9.addConstraint(Sketcher.Constraint("Equal", 6, 0))
sketch9.addConstraint(Sketcher.Constraint("Radius", 1, 10.0))
sketch9.addConstraint(Sketcher.Constraint("DistanceX", 2, 2, 2, 1, 88.8))
pad9 = doc.addObject("PartDesign::Pad", "Pad008")
body8.addObject(pad9)
pad9.Profile = sketch9
pad9.Length = 2
pad9.Reversed = True
body9 = doc.addObject("PartDesign::Body", "Body008")

# Sketch on XZ plane
sketch10 = doc.addObject("Sketcher::SketchObject", "Sketch009")
body9.addObject(sketch10)
sketch10.AttachmentSupport = (doc.getObject("XZ_Plane008"), [""])
sketch10.MapMode = "FlatFace"
sketch10.AttachmentOffset = App.Placement(V(0, 0, -7.9), App.Rotation())
sketch10.addGeometry(Part.LineSegment(V(54, 44, 0), V(54, -44, 0)), False)
sketch10.addGeometry(Part.ArcOfCircle(Part.Circle(V(44, -44, 0), V(0, 0, 1), 10), math.radians(-90), math.radians(0)), False)
sketch10.addGeometry(Part.LineSegment(V(44, -54, 0), V(-44, -54, 0)), False)
sketch10.addGeometry(Part.ArcOfCircle(Part.Circle(V(-44, -44, 0), V(0, 0, 1), 10), math.radians(180), math.radians(270)), False)
sketch10.addGeometry(Part.LineSegment(V(-54, -44, 0), V(-54, 44, 0)), False)
sketch10.addGeometry(Part.ArcOfCircle(Part.Circle(V(-44, 44, 0), V(0, 0, 1), 10), math.radians(90), math.radians(180)), False)
sketch10.addGeometry(Part.LineSegment(V(-44, 54, 0), V(44, 54, 0)), False)
sketch10.addGeometry(Part.ArcOfCircle(Part.Circle(V(44, 44, 0), V(0, 0, 1), 10), math.radians(0), math.radians(90)), False)
sketch10.addConstraint(Sketcher.Constraint("Tangent", 0, 2, 1, 2))
sketch10.addConstraint(Sketcher.Constraint("Tangent", 1, 1, 2, 1))
sketch10.addConstraint(Sketcher.Constraint("Tangent", 2, 2, 3, 2))
sketch10.addConstraint(Sketcher.Constraint("Tangent", 3, 1, 4, 1))
sketch10.addConstraint(Sketcher.Constraint("Tangent", 4, 2, 5, 2))
sketch10.addConstraint(Sketcher.Constraint("Tangent", 5, 1, 6, 1))
sketch10.addConstraint(Sketcher.Constraint("Tangent", 6, 2, 7, 2))
sketch10.addConstraint(Sketcher.Constraint("Tangent", 7, 1, 0, 1))
sketch10.addConstraint(Sketcher.Constraint("Vertical", 0))
sketch10.addConstraint(Sketcher.Constraint("Horizontal", 2))
sketch10.addConstraint(Sketcher.Constraint("Vertical", 4))
sketch10.addConstraint(Sketcher.Constraint("Horizontal", 6))
sketch10.addConstraint(Sketcher.Constraint("Equal", 1, 3))
sketch10.addConstraint(Sketcher.Constraint("Equal", 3, 5))
sketch10.addConstraint(Sketcher.Constraint("Equal", 5, 7))
sketch10.addConstraint(Sketcher.Constraint("Symmetric", 1, 3, 5, 3, -1, 1))
sketch10.addConstraint(Sketcher.Constraint("Equal", 6, 0))
sketch10.addConstraint(Sketcher.Constraint("Radius", 1, 10.0))
sketch10.addConstraint(Sketcher.Constraint("DistanceX", 2, 2, 2, 1, 88.8))
pad10 = doc.addObject("PartDesign::Pad", "Pad009")
body9.addObject(pad10)
pad10.Profile = sketch10
pad10.Length = 2.5
pad10.Reversed = True

doc.recompute()
